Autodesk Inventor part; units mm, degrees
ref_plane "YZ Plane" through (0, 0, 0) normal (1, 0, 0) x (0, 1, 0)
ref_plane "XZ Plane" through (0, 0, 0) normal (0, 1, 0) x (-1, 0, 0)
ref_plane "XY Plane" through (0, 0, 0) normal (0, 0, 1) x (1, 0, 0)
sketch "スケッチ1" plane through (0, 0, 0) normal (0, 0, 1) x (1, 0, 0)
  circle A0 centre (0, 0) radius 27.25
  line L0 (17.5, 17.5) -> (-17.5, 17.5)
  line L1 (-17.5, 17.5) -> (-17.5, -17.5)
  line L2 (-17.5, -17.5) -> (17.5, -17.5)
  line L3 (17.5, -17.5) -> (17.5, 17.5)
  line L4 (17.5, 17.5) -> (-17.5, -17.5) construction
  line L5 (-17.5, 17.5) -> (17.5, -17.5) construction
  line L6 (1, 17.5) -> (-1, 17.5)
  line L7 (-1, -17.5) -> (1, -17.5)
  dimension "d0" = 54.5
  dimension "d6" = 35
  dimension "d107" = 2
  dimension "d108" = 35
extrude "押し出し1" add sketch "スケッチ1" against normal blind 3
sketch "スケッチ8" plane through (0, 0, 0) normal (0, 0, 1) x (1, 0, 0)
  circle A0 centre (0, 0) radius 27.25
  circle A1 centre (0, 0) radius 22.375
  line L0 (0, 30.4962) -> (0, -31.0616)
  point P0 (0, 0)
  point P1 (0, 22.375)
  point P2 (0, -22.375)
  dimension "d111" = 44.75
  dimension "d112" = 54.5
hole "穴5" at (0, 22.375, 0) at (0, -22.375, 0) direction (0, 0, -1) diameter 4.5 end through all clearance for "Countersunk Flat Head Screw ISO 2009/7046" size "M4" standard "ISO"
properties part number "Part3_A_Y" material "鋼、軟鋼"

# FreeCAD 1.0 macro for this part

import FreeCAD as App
import Part
import Sketcher
from FreeCAD import Vector
Q = App.Units.Quantity


def add_polygon(sketch, points):
    """Adds a closed chain of lines whose ends are joined by coincident constraints."""
    first, n = sketch.GeometryCount, len(points)
    for a, b in zip(points, points[1:] + points[:1]):
        sketch.addGeometry(Part.LineSegment(App.Vector(*a, 0), App.Vector(*b, 0)), False)
    for i in range(n):
        sketch.addConstraint(Sketcher.Constraint("Coincident", first + i, 2, first + (i + 1) % n, 1))

doc = App.newDocument("Part")
body = doc.addObject("PartDesign::Body", "Body")

# Sketch on XY plane
sketch1 = body.newObject("Sketcher::SketchObject", "Sketch")
sketch1.AttachmentSupport = (doc.getObject("XY_Plane"), [""])
sketch1.MapMode = "FlatFace"
sketch1.addGeometry(Part.Circle(Vector(0, 0, 0), Vector(0, 0, 1), 27.25), False)  # 0
add_polygon(sketch1, [(-17.5, 17.5), (17.5, 17.5), (17.5, -17.5), (-17.5, -17.5)])  # lines 1-4
sketch1.addConstraint([
    Sketcher.Constraint("Horizontal", 1),
    Sketcher.Constraint("Vertical", 2),
    Sketcher.Constraint("Horizontal", 3),
    Sketcher.Constraint("Vertical", 4),
    Sketcher.Constraint("Coincident", 0, 3, -1, 1),
    Sketcher.Constraint("Symmetric", 1, 2, 3, 2, -1, 1),
    Sketcher.Constraint("Equal", 3, 2),
    Sketcher.Constraint("Diameter", 0, Q("54.5 mm")),
    Sketcher.Constraint("DistanceX", 1, 1, 1, 2, Q("35 mm")),
])
pad1 = body.newObject("PartDesign::Pad", "Pad")
pad1.Profile = sketch1
pad1.Length = 3
pad1.Reversed = True

# Sketch on XY plane
sketch2 = body.newObject("Sketcher::SketchObject", "Sketch001")
sketch2.AttachmentSupport = (doc.getObject("XY_Plane"), [""])
sketch2.MapMode = "FlatFace"
sketch2.addGeometry([
    Part.Circle(Vector(0, 22.375, 0), Vector(0, 0, 1), 2.25),
    Part.Circle(Vector(0, -22.375, 0), Vector(0, 0, 1), 2.25),
], False)
sketch2.addConstraint([
    Sketcher.Constraint("Equal", 0, 1),
    Sketcher.Constraint("Symmetric", 0, 3, 1, 3, -1, 1),
    Sketcher.Constraint("PointOnObject", 0, 3, -2),
    Sketcher.Constraint("Diameter", 0, Q("4.5 mm")),
    Sketcher.Constraint("DistanceY", 1, 3, 0, 3, Q("44.75 mm")),
])
doc.recompute()
hole = body.newObject("PartDesign::Hole", "Hole")
hole.Profile = sketch2
hole.ThreadType = "None"
hole.Diameter = 4.5
hole.DepthType = "ThroughAll"

doc.recompute()
